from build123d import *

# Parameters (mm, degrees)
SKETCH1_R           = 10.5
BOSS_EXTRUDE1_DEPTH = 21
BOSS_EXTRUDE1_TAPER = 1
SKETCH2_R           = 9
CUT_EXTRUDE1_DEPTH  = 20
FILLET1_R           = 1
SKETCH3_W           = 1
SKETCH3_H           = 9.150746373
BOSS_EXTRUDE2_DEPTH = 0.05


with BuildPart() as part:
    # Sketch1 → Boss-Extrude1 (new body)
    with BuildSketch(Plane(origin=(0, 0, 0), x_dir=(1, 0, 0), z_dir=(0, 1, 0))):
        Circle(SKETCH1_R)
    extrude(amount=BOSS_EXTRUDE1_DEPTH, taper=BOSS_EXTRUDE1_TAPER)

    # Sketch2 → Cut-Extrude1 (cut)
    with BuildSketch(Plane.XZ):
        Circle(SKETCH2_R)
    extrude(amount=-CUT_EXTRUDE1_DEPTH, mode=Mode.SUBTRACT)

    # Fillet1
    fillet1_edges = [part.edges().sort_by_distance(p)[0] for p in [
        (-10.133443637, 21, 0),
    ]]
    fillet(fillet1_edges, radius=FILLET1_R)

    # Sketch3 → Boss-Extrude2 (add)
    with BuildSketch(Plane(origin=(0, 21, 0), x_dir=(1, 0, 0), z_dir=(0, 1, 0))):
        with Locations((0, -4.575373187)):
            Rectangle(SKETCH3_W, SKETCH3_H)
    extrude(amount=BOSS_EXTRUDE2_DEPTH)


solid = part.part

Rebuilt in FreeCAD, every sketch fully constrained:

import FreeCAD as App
import Part
import Sketcher

V = App.Vector
Q = App.Units.Quantity


def edges_at(feature, points):
    """Names of the edges that pass closest to the given points."""
    edges = feature.Shape.Edges
    near = lambda p: min(range(len(edges)), key=lambda i: edges[i].distToShape(Part.Vertex(*p))[0])
    return sorted({f"Edge{near(p) + 1}" for p in points})

doc = App.newDocument("Part")
body = doc.addObject("PartDesign::Body", "Body")

# Sketch on XZ plane
sketch1 = doc.addObject("Sketcher::SketchObject", "Sketch")
body.addObject(sketch1)
sketch1.AttachmentSupport = (doc.XZ_Plane, [""])
sketch1.MapMode = "FlatFace"
sketch1.addGeometry(Part.Circle(V(0, 0, 0), V(0, 0, 1), 10), False)
sketch1.addConstraint(Sketcher.Constraint("Coincident", 0, 3, -1, 1))
sketch1.addConstraint(Sketcher.Constraint("Diameter", 0, Q("21 mm")))
pad1 = doc.addObject("PartDesign::Pad", "Pad")
body.addObject(pad1)
pad1.Profile = sketch1
pad1.Length = 21
pad1.Reversed = True
pad1.TaperAngle = -1

# Sketch on XZ plane
sketch2 = doc.addObject("Sketcher::SketchObject", "Sketch001")
body.addObject(sketch2)
sketch2.AttachmentSupport = (doc.XZ_Plane, [""])
sketch2.MapMode = "FlatFace"
sketch2.addGeometry(Part.Circle(V(0, 0, 0), V(0, 0, 1), 9), False)
sketch2.addConstraint(Sketcher.Constraint("Coincident", 0, 3, -1, 1))
sketch2.addConstraint(Sketcher.Constraint("Diameter", 0, Q("18 mm")))
pocket1 = doc.addObject("PartDesign::Pocket", "Pocket")
body.addObject(pocket1)
pocket1.Profile = sketch2
pocket1.Length = 20
doc.recompute()

fillet = doc.addObject("PartDesign::Fillet", "Fillet")
body.addObject(fillet)
fillet.Base = (pocket1, edges_at(pocket1, [(-10.133, 21, 0)]))
fillet.Radius = 1

# Sketch on XZ plane
sketch3 = doc.addObject("Sketcher::SketchObject", "Sketch002")
body.addObject(sketch3)
sketch3.AttachmentSupport = (doc.XZ_Plane, [""])
sketch3.MapMode = "FlatFace"
sketch3.AttachmentOffset = App.Placement(V(0, 0, -21), App.Rotation())
sketch3.addGeometry(Part.LineSegment(V(-0.5, 0, 0), V(-0.5, 9.2, 0)), False)
sketch3.addGeometry(Part.LineSegment(V(-0.5, 9.2, 0), V(0.5, 9.2, 0)), False)
sketch3.addGeometry(Part.LineSegment(V(0.5, 9.2, 0), V(0.5, 0, 0)), False)
sketch3.addGeometry(Part.LineSegment(V(0.5, 0, 0), V(-0.5, 0, 0)), False)
sketch3.addConstraint(Sketcher.Constraint("Coincident", 0, 2, 1, 1))
sketch3.addConstraint(Sketcher.Constraint("Coincident", 1, 2, 2, 1))
sketch3.addConstraint(Sketcher.Constraint("Coincident", 2, 2, 3, 1))
sketch3.addConstraint(Sketcher.Constraint("Coincident", 3, 2, 0, 1))
sketch3.addConstraint(Sketcher.Constraint("Vertical", 0))
sketch3.addConstraint(Sketcher.Constraint("Horizontal", 1))
sketch3.addConstraint(Sketcher.Constraint("Vertical", 2))
sketch3.addConstraint(Sketcher.Constraint("Horizontal", 3))
sketch3.addConstraint(Sketcher.Constraint("Symmetric", 2, 2, 3, 2, -1, 1))
sketch3.addConstraint(Sketcher.Constraint("DistanceX", 1, 1, 1, 2, Q("1 mm")))
sketch3.addConstraint(Sketcher.Constraint("DistanceY", 0, 1, 0, 2, Q("9.150746 mm")))
pad2 = doc.addObject("PartDesign::Pad", "Pad001")
body.addObject(pad2)
pad2.Profile = sketch3
pad2.Length = 0.05
pad2.Reversed = True

doc.recompute()
